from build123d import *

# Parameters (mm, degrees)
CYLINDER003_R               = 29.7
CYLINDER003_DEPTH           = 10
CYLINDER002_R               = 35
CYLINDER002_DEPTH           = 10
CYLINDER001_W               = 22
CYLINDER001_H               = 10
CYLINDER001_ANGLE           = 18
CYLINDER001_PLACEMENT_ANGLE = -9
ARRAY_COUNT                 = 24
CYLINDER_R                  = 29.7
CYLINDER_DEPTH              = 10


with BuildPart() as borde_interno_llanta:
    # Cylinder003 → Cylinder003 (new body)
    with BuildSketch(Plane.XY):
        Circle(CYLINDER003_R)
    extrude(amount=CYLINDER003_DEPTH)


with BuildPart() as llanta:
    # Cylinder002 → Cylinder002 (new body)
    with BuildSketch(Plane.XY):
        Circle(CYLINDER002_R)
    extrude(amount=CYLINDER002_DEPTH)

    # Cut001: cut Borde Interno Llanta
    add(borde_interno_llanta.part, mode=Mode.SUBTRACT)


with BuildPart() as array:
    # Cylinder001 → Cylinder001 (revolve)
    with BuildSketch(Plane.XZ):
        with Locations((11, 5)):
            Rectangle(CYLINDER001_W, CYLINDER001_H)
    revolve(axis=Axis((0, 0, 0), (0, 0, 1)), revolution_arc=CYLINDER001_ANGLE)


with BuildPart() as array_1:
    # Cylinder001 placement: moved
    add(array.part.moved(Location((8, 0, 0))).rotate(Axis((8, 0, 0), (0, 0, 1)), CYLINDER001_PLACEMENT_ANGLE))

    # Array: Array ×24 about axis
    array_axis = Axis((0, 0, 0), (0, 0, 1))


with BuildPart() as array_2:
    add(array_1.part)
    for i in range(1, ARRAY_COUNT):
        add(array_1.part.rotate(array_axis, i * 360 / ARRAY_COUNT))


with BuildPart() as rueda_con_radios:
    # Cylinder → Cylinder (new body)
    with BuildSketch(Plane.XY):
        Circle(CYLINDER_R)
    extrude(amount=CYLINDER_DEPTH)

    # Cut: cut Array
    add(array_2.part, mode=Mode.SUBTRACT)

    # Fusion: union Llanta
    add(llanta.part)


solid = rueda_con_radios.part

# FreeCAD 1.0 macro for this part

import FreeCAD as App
import Part
import Sketcher
from FreeCAD import Vector


def add_polygon(sketch, points):
    """Adds a closed chain of lines whose ends are joined by coincident constraints."""
    first, n = sketch.GeometryCount, len(points)
    for a, b in zip(points, points[1:] + points[:1]):
        sketch.addGeometry(Part.LineSegment(App.Vector(*a, 0), App.Vector(*b, 0)), False)
    for i in range(n):
        sketch.addConstraint(Sketcher.Constraint("Coincident", first + i, 2, first + (i + 1) % n, 1))

doc = App.newDocument("Part")
body = doc.addObject("PartDesign::Body", "Body")

# Sketch on XY plane
sketch1 = doc.addObject("Sketcher::SketchObject", "Sketch")
body.addObject(sketch1)
sketch1.AttachmentSupport = (doc.XY_Plane, [""])
sketch1.MapMode = "FlatFace"
sketch1.addGeometry(Part.Circle(Vector(0, 0, 0), Vector(0, 0, 1), 30), False)
sketch1.addConstraint(Sketcher.Constraint("Coincident", 0, 3, -1, 1))
sketch1.addConstraint(Sketcher.Constraint("Diameter", 0, 59.4))
pad1 = doc.addObject("PartDesign::Pad", "Pad")
body.addObject(pad1)
pad1.Profile = sketch1
pad1.Length = 10
body2 = doc.addObject("PartDesign::Body", "Body001")

# Sketch on XY plane
sketch2 = doc.addObject("Sketcher::SketchObject", "Sketch001")
body2.addObject(sketch2)
sketch2.AttachmentSupport = (doc.getObject("XY_Plane001"), [""])
sketch2.MapMode = "FlatFace"
sketch2.addGeometry(Part.Circle(Vector(0, 0, 0), Vector(0, 0, 1), 35), False)
sketch2.addConstraint(Sketcher.Constraint("Coincident", 0, 3, -1, 1))
sketch2.addConstraint(Sketcher.Constraint("Diameter", 0, 70.0))
pad2 = doc.addObject("PartDesign::Pad", "Pad001")
body2.addObject(pad2)
pad2.Profile = sketch2
pad2.Length = 10
doc.recompute()

boolean = doc.addObject("PartDesign::Boolean", "Boolean")
body2.addObject(boolean)
boolean.Type = "Cut"
boolean.addObjects([body])
body3 = doc.addObject("PartDesign::Body", "Body002")

# Sketch on XZ plane
sketch3 = doc.addObject("Sketcher::SketchObject", "Sketch002")
body3.addObject(sketch3)
sketch3.AttachmentSupport = (doc.getObject("XZ_Plane002"), [""])
sketch3.MapMode = "FlatFace"
add_polygon(sketch3, [(0, 10), (0, 0), (22, 0), (22, 10)])  # lines 0-3
sketch3.addConstraint(Sketcher.Constraint("Vertical", 0))
sketch3.addConstraint(Sketcher.Constraint("Horizontal", 1))
sketch3.addConstraint(Sketcher.Constraint("Vertical", 2))
sketch3.addConstraint(Sketcher.Constraint("Horizontal", 3))
sketch3.addConstraint(Sketcher.Constraint("Coincident", 0, 2, -1, 1))
sketch3.addConstraint(Sketcher.Constraint("DistanceX", 1, 1, 1, 2, 22.0))
sketch3.addConstraint(Sketcher.Constraint("DistanceY", 0, 2, 0, 1, 10.0))
revolution = doc.addObject("PartDesign::Revolution", "Revolution")
body3.addObject(revolution)
revolution.Profile = sketch3
revolution.ReferenceAxis = (sketch3, ["V_Axis"])
revolution.Angle = 18
body4 = doc.addObject("PartDesign::Body", "Body003")
doc.recompute()

body3.Placement = App.Placement(Vector(8, 0, 0), App.Rotation(Vector(0, 0, 1), 351))
boolean2 = doc.addObject("PartDesign::Boolean", "Boolean001")
body4.addObject(boolean2)
boolean2.Type = "Fuse"
boolean2.addObjects([body3])
body5 = doc.addObject("PartDesign::Body", "Body004")
body5.AllowCompound = True
doc.recompute()

body5.BaseFeature = body4
doc.recompute()

body6 = doc.addObject("PartDesign::Body", "Body005")
body6.BaseFeature = body4
body6.Placement = App.Placement(Vector(0, 0, 0), App.Rotation(Vector(0, 0, 1), 15))
boolean3 = doc.addObject("PartDesign::Boolean", "Boolean002")
body5.addObject(boolean3)
boolean3.Type = "Fuse"
boolean3.addObjects([body6])
doc.recompute()

body7 = doc.addObject("PartDesign::Body", "Body006")
body7.BaseFeature = body4
body7.Placement = App.Placement(Vector(0, 0, 0), App.Rotation(Vector(0, 0, 1), 30))
boolean4 = doc.addObject("PartDesign::Boolean", "Boolean003")
body5.addObject(boolean4)
boolean4.Type = "Fuse"
boolean4.addObjects([body7])
doc.recompute()

body8 = doc.addObject("PartDesign::Body", "Body007")
body8.BaseFeature = body4
body8.Placement = App.Placement(Vector(0, 0, 0), App.Rotation(Vector(0, 0, 1), 45))
boolean5 = doc.addObject("PartDesign::Boolean", "Boolean004")
body5.addObject(boolean5)
boolean5.Type = "Fuse"
boolean5.addObjects([body8])
doc.recompute()

body9 = doc.addObject("PartDesign::Body", "Body008")
body9.BaseFeature = body4
body9.Placement = App.Placement(Vector(0, 0, 0), App.Rotation(Vector(0, 0, 1), 60))
boolean6 = doc.addObject("PartDesign::Boolean", "Boolean005")
body5.addObject(boolean6)
boolean6.Type = "Fuse"
boolean6.addObjects([body9])
doc.recompute()

body10 = doc.addObject("PartDesign::Body", "Body009")
body10.BaseFeature = body4
body10.Placement = App.Placement(Vector(0, 0, 0), App.Rotation(Vector(0, 0, 1), 75))
boolean7 = doc.addObject("PartDesign::Boolean", "Boolean006")
body5.addObject(boolean7)
boolean7.Type = "Fuse"
boolean7.addObjects([body10])
doc.recompute()

body11 = doc.addObject("PartDesign::Body", "Body010")
body11.BaseFeature = body4
body11.Placement = App.Placement(Vector(0, 0, 0), App.Rotation(Vector(0, 0, 1), 90))
boolean8 = doc.addObject("PartDesign::Boolean", "Boolean007")
body5.addObject(boolean8)
boolean8.Type = "Fuse"
boolean8.addObjects([body11])
doc.recompute()

body12 = doc.addObject("PartDesign::Body", "Body011")
body12.BaseFeature = body4
body12.Placement = App.Placement(Vector(0, 0, 0), App.Rotation(Vector(0, 0, 1), 105))
boolean9 = doc.addObject("PartDesign::Boolean", "Boolean008")
body5.addObject(boolean9)
boolean9.Type = "Fuse"
boolean9.addObjects([body12])
doc.recompute()

body13 = doc.addObject("PartDesign::Body", "Body012")
body13.BaseFeature = body4
body13.Placement = App.Placement(Vector(0, 0, 0), App.Rotation(Vector(0, 0, 1), 120))
boolean10 = doc.addObject("PartDesign::Boolean", "Boolean009")
body5.addObject(boolean10)
boolean10.Type = "Fuse"
boolean10.addObjects([body13])
doc.recompute()

body14 = doc.addObject("PartDesign::Body", "Body013")
body14.BaseFeature = body4
body14.Placement = App.Placement(Vector(0, 0, 0), App.Rotation(Vector(0, 0, 1), 135))
boolean11 = doc.addObject("PartDesign::Boolean", "Boolean010")
body5.addObject(boolean11)
boolean11.Type = "Fuse"
boolean11.addObjects([body14])
doc.recompute()

body15 = doc.addObject("PartDesign::Body", "Body014")
body15.BaseFeature = body4
body15.Placement = App.Placement(Vector(0, 0, 0), App.Rotation(Vector(0, 0, 1), 150))
boolean12 = doc.addObject("PartDesign::Boolean", "Boolean011")
body5.addObject(boolean12)
boolean12.Type = "Fuse"
boolean12.addObjects([body15])
doc.recompute()

body16 = doc.addObject("PartDesign::Body", "Body015")
body16.BaseFeature = body4
body16.Placement = App.Placement(Vector(0, 0, 0), App.Rotation(Vector(0, 0, 1), 165))
boolean13 = doc.addObject("PartDesign::Boolean", "Boolean012")
body5.addObject(boolean13)
boolean13.Type = "Fuse"
boolean13.addObjects([body16])
doc.recompute()

body17 = doc.addObject("PartDesign::Body", "Body016")
body17.BaseFeature = body4
body17.Placement = App.Placement(Vector(0, 0, 0), App.Rotation(Vector(0, 0, 1), 180))
boolean14 = doc.addObject("PartDesign::Boolean", "Boolean013")
body5.addObject(boolean14)
boolean14.Type = "Fuse"
boolean14.addObjects([body17])
doc.recompute()

body18 = doc.addObject("PartDesign::Body", "Body017")
body18.BaseFeature = body4
body18.Placement = App.Placement(Vector(0, 0, 0), App.Rotation(Vector(0, 0, 1), 195))
boolean15 = doc.addObject("PartDesign::Boolean", "Boolean014")
body5.addObject(boolean15)
boolean15.Type = "Fuse"
boolean15.addObjects([body18])
doc.recompute()

body19 = doc.addObject("PartDesign::Body", "Body018")
body19.BaseFeature = body4
body19.Placement = App.Placement(Vector(0, 0, 0), App.Rotation(Vector(0, 0, 1), 210))
boolean16 = doc.addObject("PartDesign::Boolean", "Boolean015")
body5.addObject(boolean16)
boolean16.Type = "Fuse"
boolean16.addObjects([body19])
doc.recompute()

body20 = doc.addObject("PartDesign::Body", "Body019")
body20.BaseFeature = body4
body20.Placement = App.Placement(Vector(0, 0, 0), App.Rotation(Vector(0, 0, 1), 225))
boolean17 = doc.addObject("PartDesign::Boolean", "Boolean016")
body5.addObject(boolean17)
boolean17.Type = "Fuse"
boolean17.addObjects([body20])
doc.recompute()

body21 = doc.addObject("PartDesign::Body", "Body020")
body21.BaseFeature = body4
body21.Placement = App.Placement(Vector(0, 0, 0), App.Rotation(Vector(0, 0, 1), 240))
boolean18 = doc.addObject("PartDesign::Boolean", "Boolean017")
body5.addObject(boolean18)
boolean18.Type = "Fuse"
boolean18.addObjects([body21])
doc.recompute()

body22 = doc.addObject("PartDesign::Body", "Body021")
body22.BaseFeature = body4
body22.Placement = App.Placement(Vector(0, 0, 0), App.Rotation(Vector(0, 0, 1), 255))
boolean19 = doc.addObject("PartDesign::Boolean", "Boolean018")
body5.addObject(boolean19)
boolean19.Type = "Fuse"
boolean19.addObjects([body22])
doc.recompute()

body23 = doc.addObject("PartDesign::Body", "Body022")
body23.BaseFeature = body4
body23.Placement = App.Placement(Vector(0, 0, 0), App.Rotation(Vector(0, 0, 1), 270))
boolean20 = doc.addObject("PartDesign::Boolean", "Boolean019")
body5.addObject(boolean20)
boolean20.Type = "Fuse"
boolean20.addObjects([body23])
doc.recompute()

body24 = doc.addObject("PartDesign::Body", "Body023")
body24.BaseFeature = body4
body24.Placement = App.Placement(Vector(0, 0, 0), App.Rotation(Vector(0, 0, 1), 285))
boolean21 = doc.addObject("PartDesign::Boolean", "Boolean020")
body5.addObject(boolean21)
boolean21.Type = "Fuse"
boolean21.addObjects([body24])
doc.recompute()

body25 = doc.addObject("PartDesign::Body", "Body024")
body25.BaseFeature = body4
body25.Placement = App.Placement(Vector(0, 0, 0), App.Rotation(Vector(0, 0, 1), 300))
boolean22 = doc.addObject("PartDesign::Boolean", "Boolean021")
body5.addObject(boolean22)
boolean22.Type = "Fuse"
boolean22.addObjects([body25])
doc.recompute()

body26 = doc.addObject("PartDesign::Body", "Body025")
body26.BaseFeature = body4
body26.Placement = App.Placement(Vector(0, 0, 0), App.Rotation(Vector(0, 0, 1), 315))
boolean23 = doc.addObject("PartDesign::Boolean", "Boolean022")
body5.addObject(boolean23)
boolean23.Type = "Fuse"
boolean23.addObjects([body26])
doc.recompute()

body27 = doc.addObject("PartDesign::Body", "Body026")
body27.BaseFeature = body4
body27.Placement = App.Placement(Vector(0, 0, 0), App.Rotation(Vector(0, 0, 1), 330))
boolean24 = doc.addObject("PartDesign::Boolean", "Boolean023")
body5.addObject(boolean24)
boolean24.Type = "Fuse"
boolean24.addObjects([body27])
doc.recompute()

body4.Placement = App.Placement(Vector(0, 0, 0), App.Rotation(Vector(0, 0, 1), 345))
boolean25 = doc.addObject("PartDesign::Boolean", "Boolean024")
body5.addObject(boolean25)
boolean25.Type = "Fuse"
boolean25.addObjects([body4])
body28 = doc.addObject("PartDesign::Body", "Body027")

# Sketch on XY plane
sketch4 = doc.addObject("Sketcher::SketchObject", "Sketch003")
body28.addObject(sketch4)
sketch4.AttachmentSupport = (doc.getObject("XY_Plane027"), [""])
sketch4.MapMode = "FlatFace"
sketch4.addGeometry(Part.Circle(Vector(0, 0, 0), Vector(0, 0, 1), 30), False)
sketch4.addConstraint(Sketcher.Constraint("Coincident", 0, 3, -1, 1))
sketch4.addConstraint(Sketcher.Constraint("Diameter", 0, 59.4))
pad3 = doc.addObject("PartDesign::Pad", "Pad002")
body28.addObject(pad3)
pad3.Profile = sketch4
pad3.Length = 10
doc.recompute()

boolean26 = doc.addObject("PartDesign::Boolean", "Boolean025")
body28.addObject(boolean26)
boolean26.Type = "Cut"
boolean26.addObjects([body5])
doc.recompute()

boolean27 = doc.addObject("PartDesign::Boolean", "Boolean026")
body28.addObject(boolean27)
boolean27.Type = "Fuse"
boolean27.addObjects([body2])

doc.recompute()
